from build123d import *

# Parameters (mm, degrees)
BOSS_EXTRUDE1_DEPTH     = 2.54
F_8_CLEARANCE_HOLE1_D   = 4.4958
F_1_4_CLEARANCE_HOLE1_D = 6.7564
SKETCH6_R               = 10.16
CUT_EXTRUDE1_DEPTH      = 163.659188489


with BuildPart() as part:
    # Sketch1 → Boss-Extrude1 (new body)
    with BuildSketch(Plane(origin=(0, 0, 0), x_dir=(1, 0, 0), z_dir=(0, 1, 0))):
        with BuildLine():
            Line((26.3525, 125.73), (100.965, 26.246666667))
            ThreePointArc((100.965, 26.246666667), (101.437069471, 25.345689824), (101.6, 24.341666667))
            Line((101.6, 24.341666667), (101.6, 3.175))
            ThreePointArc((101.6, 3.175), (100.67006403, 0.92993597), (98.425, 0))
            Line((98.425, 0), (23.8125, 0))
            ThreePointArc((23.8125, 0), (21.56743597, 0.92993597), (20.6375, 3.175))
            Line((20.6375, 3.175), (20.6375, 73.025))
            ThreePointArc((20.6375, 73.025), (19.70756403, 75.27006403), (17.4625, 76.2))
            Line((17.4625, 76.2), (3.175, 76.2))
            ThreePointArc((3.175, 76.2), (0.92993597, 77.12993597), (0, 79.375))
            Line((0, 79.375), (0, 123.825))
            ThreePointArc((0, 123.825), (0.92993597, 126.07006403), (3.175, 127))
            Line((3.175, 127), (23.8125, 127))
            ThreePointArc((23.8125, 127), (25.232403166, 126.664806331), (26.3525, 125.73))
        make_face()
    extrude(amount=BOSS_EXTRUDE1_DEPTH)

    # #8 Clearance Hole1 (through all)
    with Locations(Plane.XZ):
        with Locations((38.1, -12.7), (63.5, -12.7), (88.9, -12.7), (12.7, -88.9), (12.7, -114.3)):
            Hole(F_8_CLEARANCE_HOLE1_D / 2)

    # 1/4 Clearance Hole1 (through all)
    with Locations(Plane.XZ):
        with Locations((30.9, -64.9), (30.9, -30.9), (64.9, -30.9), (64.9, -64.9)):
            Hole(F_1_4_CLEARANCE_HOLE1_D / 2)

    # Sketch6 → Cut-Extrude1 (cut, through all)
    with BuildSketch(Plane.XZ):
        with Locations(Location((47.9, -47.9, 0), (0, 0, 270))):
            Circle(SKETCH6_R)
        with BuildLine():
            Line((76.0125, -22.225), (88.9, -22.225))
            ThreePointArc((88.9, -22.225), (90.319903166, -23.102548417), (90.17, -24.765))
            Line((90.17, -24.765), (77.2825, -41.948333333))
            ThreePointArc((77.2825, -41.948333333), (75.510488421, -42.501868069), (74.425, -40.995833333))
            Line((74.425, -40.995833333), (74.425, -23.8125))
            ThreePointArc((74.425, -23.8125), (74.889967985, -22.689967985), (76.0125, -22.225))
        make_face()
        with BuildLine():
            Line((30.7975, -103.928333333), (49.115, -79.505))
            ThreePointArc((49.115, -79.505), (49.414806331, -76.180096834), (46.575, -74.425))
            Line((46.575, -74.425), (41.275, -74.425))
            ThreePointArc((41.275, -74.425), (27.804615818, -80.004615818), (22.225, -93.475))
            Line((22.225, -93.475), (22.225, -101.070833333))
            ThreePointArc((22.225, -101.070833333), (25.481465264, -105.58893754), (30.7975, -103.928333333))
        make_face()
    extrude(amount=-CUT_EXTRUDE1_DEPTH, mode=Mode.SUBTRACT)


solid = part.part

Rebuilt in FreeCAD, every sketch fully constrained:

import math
import FreeCAD as App
import Part
import Sketcher
from FreeCAD import Vector
Q = App.Units.Quantity

doc = App.newDocument("Part")
body = doc.addObject("PartDesign::Body", "Body")

# Sketch on XZ plane
sketch1 = body.newObject("Sketcher::SketchObject", "Sketch")
sketch1.AttachmentSupport = (doc.getObject("XZ_Plane"), [""])
sketch1.MapMode = "FlatFace"
sketch1.addGeometry([
    Part.LineSegment(Vector(101, -26.2, 0), Vector(26.4, -125.7, 0)),  # 0
    Part.ArcOfCircle(Part.Circle(Vector(23.8, -123.8, 0), Vector(0, 0, 1), 3.2), math.radians(-90), math.radians(-37)),  # 1
    Part.LineSegment(Vector(23.8, -127, 0), Vector(3.2, -127, 0)),  # 2
    Part.ArcOfCircle(Part.Circle(Vector(3.2, -123.8, 0), Vector(0, 0, 1), 3.2), math.radians(-180), math.radians(-90)),  # 3
    Part.LineSegment(Vector(0, -123.8, 0), Vector(0, -79.4, 0)),  # 4
    Part.ArcOfCircle(Part.Circle(Vector(3.2, -79.4, 0), Vector(0, 0, 1), 3.2), math.radians(90), math.radians(180)),  # 5
    Part.LineSegment(Vector(3.2, -76.2, 0), Vector(17.5, -76.2, 0)),  # 6
    Part.ArcOfCircle(Part.Circle(Vector(17.5, -73, 0), Vector(0, 0, 1), 3.2), math.radians(-90), math.radians(0)),  # 7
    Part.LineSegment(Vector(20.6, -73, 0), Vector(20.6, -3.2, 0)),  # 8
    Part.ArcOfCircle(Part.Circle(Vector(23.8, -3.2, 0), Vector(0, 0, 1), 3.2), math.radians(90), math.radians(180)),  # 9
    Part.LineSegment(Vector(23.8, 0, 0), Vector(98.4, 0, 0)),  # 10
    Part.ArcOfCircle(Part.Circle(Vector(98.4, -3.2, 0), Vector(0, 0, 1), 3.2), math.radians(0), math.radians(90)),  # 11
    Part.LineSegment(Vector(101.6, -3.2, 0), Vector(101.6, -24.3, 0)),  # 12
    Part.ArcOfCircle(Part.Circle(Vector(98.4, -24.3, 0), Vector(0, 0, 1), 3.2), math.radians(-37), math.radians(0)),  # 13
], False)
sketch1.addConstraint([
    Sketcher.Constraint("Tangent", 0, 2, 1, 2),
    Sketcher.Constraint("Tangent", 1, 1, 2, 1),
    Sketcher.Constraint("Tangent", 2, 2, 3, 2),
    Sketcher.Constraint("Tangent", 3, 1, 4, 1),
    Sketcher.Constraint("Tangent", 4, 2, 5, 2),
    Sketcher.Constraint("Tangent", 5, 1, 6, 1),
    Sketcher.Constraint("Tangent", 6, 2, 7, 1),
    Sketcher.Constraint("Tangent", 7, 2, 8, 1),
    Sketcher.Constraint("Tangent", 8, 2, 9, 2),
    Sketcher.Constraint("Tangent", 9, 1, 10, 1),
    Sketcher.Constraint("Tangent", 10, 2, 11, 2),
    Sketcher.Constraint("Tangent", 11, 1, 12, 1),
    Sketcher.Constraint("Tangent", 12, 2, 13, 2),
    Sketcher.Constraint("Tangent", 13, 1, 0, 1),
    Sketcher.Constraint("Horizontal", 2),
    Sketcher.Constraint("Vertical", 4),
    Sketcher.Constraint("Horizontal", 6),
    Sketcher.Constraint("Vertical", 8),
    Sketcher.Constraint("Horizontal", 10),
    Sketcher.Constraint("Vertical", 12),
    Sketcher.Constraint("Equal", 1, 3),
    Sketcher.Constraint("Equal", 3, 5),
    Sketcher.Constraint("Equal", 5, 7),
    Sketcher.Constraint("Equal", 7, 9),
    Sketcher.Constraint("Equal", 9, 11),
    Sketcher.Constraint("Equal", 11, 13),
    Sketcher.Constraint("PointOnObject", 3, 1, -2),
    Sketcher.Constraint("PointOnObject", 9, 1, -1),
    Sketcher.Constraint("Vertical", 1, 3, 9, 3),
    Sketcher.Constraint("DistanceY", 1, 1, -1, 1, Q("5 in")),
    Sketcher.Constraint("DistanceY", 5, 1, -1, 1, Q("3 in")),
    Sketcher.Constraint("DistanceX", -1, 1, 11, 1, Q("4 in")),
    Sketcher.Constraint("Radius", 1, Q("0.125 in")),
    Sketcher.Constraint("DistanceX", 1, 3, 0, 2, Q("0.1 in")),
    Sketcher.Constraint("DistanceX", 2, 2, 2, 1, Q("0.8125 in")),
])
pad1 = body.newObject("PartDesign::Pad", "Pad")
pad1.Profile = sketch1
pad1.Length = Q("0.1 in")
pad1.Reversed = True

# Sketch on XZ plane
sketch2 = body.newObject("Sketcher::SketchObject", "Sketch001")
sketch2.AttachmentSupport = (doc.getObject("XZ_Plane"), [""])
sketch2.MapMode = "FlatFace"
sketch2.addGeometry([
    Part.Circle(Vector(38.1, -12.7, 0), Vector(0, 0, 1), 2.2),  # 0
    Part.Circle(Vector(63.5, -12.7, 0), Vector(0, 0, 1), 2.2),  # 1
    Part.Circle(Vector(88.9, -12.7, 0), Vector(0, 0, 1), 2.2),  # 2
    Part.Circle(Vector(12.7, -88.9, 0), Vector(0, 0, 1), 2.2),  # 3
    Part.Circle(Vector(12.7, -114.3, 0), Vector(0, 0, 1), 2.2),  # 4
], False)
sketch2.addConstraint([
    Sketcher.Constraint("Equal", 0, 1),
    Sketcher.Constraint("Equal", 1, 2),
    Sketcher.Constraint("Equal", 2, 3),
    Sketcher.Constraint("Equal", 3, 4),
    Sketcher.Constraint("Horizontal", 0, 3, 1, 3),
    Sketcher.Constraint("Horizontal", 1, 3, 2, 3),
    Sketcher.Constraint("Vertical", 3, 3, 4, 3),
    Sketcher.Constraint("Diameter", 0, Q("0.177 in")),
    Sketcher.Constraint("DistanceX", 0, 3, 1, 3, Q("1 in")),
    Sketcher.Constraint("DistanceX", 1, 3, 2, 3, Q("1 in")),
    Sketcher.Constraint("DistanceX", 3, 3, 0, 3, Q("1 in")),
    Sketcher.Constraint("DistanceY", 3, 3, 0, 3, Q("3 in")),
    Sketcher.Constraint("DistanceY", 4, 3, 3, 3, Q("1 in")),
    Sketcher.Constraint("DistanceX", -1, 1, 0, 3, Q("1.5 in")),
    Sketcher.Constraint("DistanceY", 0, 3, -1, 1, Q("0.5 in")),
])
doc.recompute()
hole = body.newObject("PartDesign::Hole", "Hole")
hole.Profile = sketch2
hole.ThreadType = "None"
hole.Diameter = Q("0.177 in")
hole.DepthType = "ThroughAll"

# Sketch on XZ plane
sketch3 = body.newObject("Sketcher::SketchObject", "Sketch002")
sketch3.AttachmentSupport = (doc.getObject("XZ_Plane"), [""])
sketch3.MapMode = "FlatFace"
sketch3.addGeometry([
    Part.Circle(Vector(30.9, -64.9, 0), Vector(0, 0, 1), 3.4),
    Part.Circle(Vector(30.9, -30.9, 0), Vector(0, 0, 1), 3.4),
    Part.Circle(Vector(64.9, -30.9, 0), Vector(0, 0, 1), 3.4),
    Part.Circle(Vector(64.9, -64.9, 0), Vector(0, 0, 1), 3.4),
], False)
sketch3.addConstraint([
    Sketcher.Constraint("Equal", 0, 1),
    Sketcher.Constraint("Equal", 1, 2),
    Sketcher.Constraint("Equal", 2, 3),
    Sketcher.Constraint("Horizontal", 1, 3, 2, 3),
    Sketcher.Constraint("Horizontal", 0, 3, 3, 3),
    Sketcher.Constraint("Vertical", 0, 3, 1, 3),
    Sketcher.Constraint("Vertical", 2, 3, 3, 3),
    Sketcher.Constraint("Diameter", 0, Q("0.266 in")),
    Sketcher.Constraint("DistanceX", -1, 1, 0, 3, 30.9),
    Sketcher.Constraint("DistanceY", 0, 3, -1, 1, 64.9),
    Sketcher.Constraint("DistanceY", 1, 3, -1, 1, 30.9),
    Sketcher.Constraint("DistanceX", -1, 1, 2, 3, 64.9),
])
doc.recompute()
hole2 = body.newObject("PartDesign::Hole", "Hole001")
hole2.Profile = sketch3
hole2.ThreadType = "None"
hole2.Diameter = Q("0.266 in")
hole2.DepthType = "ThroughAll"

# Sketch on XZ plane
sketch4 = body.newObject("Sketcher::SketchObject", "Sketch003")
sketch4.AttachmentSupport = (doc.getObject("XZ_Plane"), [""])
sketch4.MapMode = "FlatFace"
sketch4.addGeometry([
    Part.Circle(Vector(47.9, -47.9, 0), Vector(0, 0, 1), 10.2),  # 0
    Part.LineSegment(Vector(88.9, -22.2, 0), Vector(76, -22.2, 0)),  # 1
    Part.ArcOfCircle(Part.Circle(Vector(76, -23.8, 0), Vector(0, 0, 1), 1.6), math.radians(90), math.radians(180)),  # 2
    Part.LineSegment(Vector(74.4, -23.8, 0), Vector(74.4, -41, 0)),  # 3
    Part.ArcOfCircle(Part.Circle(Vector(76, -41, 0), Vector(0, 0, 1), 1.6), math.radians(180), math.radians(323)),  # 4
    Part.LineSegment(Vector(77.3, -41.9, 0), Vector(90.2, -24.8, 0)),  # 5
    Part.ArcOfCircle(Part.Circle(Vector(88.9, -23.8, 0), Vector(0, 0, 1), 1.6), math.radians(-37), math.radians(90)),  # 6
    Part.LineSegment(Vector(30.8, -103.9, 0), Vector(49.1, -79.5, 0)),  # 7
    Part.ArcOfCircle(Part.Circle(Vector(46.6, -77.6, 0), Vector(0, 0, 1), 3.2), math.radians(-37), math.radians(90)),  # 8
    Part.LineSegment(Vector(46.6, -74.4, 0), Vector(41.3, -74.4, 0)),  # 9
    Part.ArcOfCircle(Part.Circle(Vector(41.3, -93.5, 0), Vector(0, 0, 1), 19), math.radians(90), math.radians(180)),  # 10
    Part.LineSegment(Vector(22.2, -93.5, 0), Vector(22.2, -101.1, 0)),  # 11
    Part.ArcOfCircle(Part.Circle(Vector(27, -101.1, 0), Vector(0, 0, 1), 4.8), math.radians(180), math.radians(323)),  # 12
], False)
sketch4.addConstraint([
    Sketcher.Constraint("Tangent", 1, 2, 2, 1),
    Sketcher.Constraint("Tangent", 2, 2, 3, 1),
    Sketcher.Constraint("Tangent", 3, 2, 4, 1),
    Sketcher.Constraint("Tangent", 4, 2, 5, 1),
    Sketcher.Constraint("Tangent", 5, 2, 6, 1),
    Sketcher.Constraint("Tangent", 6, 2, 1, 1),
    Sketcher.Constraint("Tangent", 7, 2, 8, 1),
    Sketcher.Constraint("Tangent", 8, 2, 9, 1),
    Sketcher.Constraint("Tangent", 9, 2, 10, 1),
    Sketcher.Constraint("Tangent", 10, 2, 11, 1),
    Sketcher.Constraint("Tangent", 11, 2, 12, 1),
    Sketcher.Constraint("Tangent", 12, 2, 7, 1),
    Sketcher.Constraint("Horizontal", 1),
    Sketcher.Constraint("Vertical", 3),
    Sketcher.Constraint("Horizontal", 9),
    Sketcher.Constraint("Vertical", 11),
    Sketcher.Constraint("Equal", 2, 4),
    Sketcher.Constraint("Equal", 4, 6),
    Sketcher.Constraint("Parallel", 5, 7),
    Sketcher.Constraint("Diameter", 0, Q("0.8 in")),
    Sketcher.Constraint("Radius", 10, Q("0.75 in")),
    Sketcher.Constraint("Radius", 2, Q("0.0625 in")),
    Sketcher.Constraint("Radius", 8, Q("0.125 in")),
    Sketcher.Constraint("Radius", 12, Q("0.1875 in")),
    Sketcher.Constraint("DistanceX", -1, 1, 6, 3, Q("3.5 in")),
    Sketcher.Constraint("DistanceY", 5, 2, 1, 2, Q("0.1 in")),
    Sketcher.Constraint("DistanceY", 2, 3, -1, 1, Q("0.9375 in")),
    Sketcher.Constraint("DistanceX", -1, 1, 10, 3, Q("1.625 in")),
    Sketcher.Constraint("DistanceX", 1, 2, 1, 1, 12.8875),
    Sketcher.Constraint("DistanceX", 9, 2, 9, 1, 5.3),
    Sketcher.Constraint("DistanceX", -1, 1, 0, 3, 47.9),
    Sketcher.Constraint("DistanceY", 0, 3, -1, 1, 47.9),
    Sketcher.Constraint("DistanceY", 8, 3, -1, 1, 77.6),
])
pocket1 = body.newObject("PartDesign::Pocket", "Pocket")
pocket1.Profile = sketch4
pocket1.Type = "ThroughAll"

doc.recompute()
